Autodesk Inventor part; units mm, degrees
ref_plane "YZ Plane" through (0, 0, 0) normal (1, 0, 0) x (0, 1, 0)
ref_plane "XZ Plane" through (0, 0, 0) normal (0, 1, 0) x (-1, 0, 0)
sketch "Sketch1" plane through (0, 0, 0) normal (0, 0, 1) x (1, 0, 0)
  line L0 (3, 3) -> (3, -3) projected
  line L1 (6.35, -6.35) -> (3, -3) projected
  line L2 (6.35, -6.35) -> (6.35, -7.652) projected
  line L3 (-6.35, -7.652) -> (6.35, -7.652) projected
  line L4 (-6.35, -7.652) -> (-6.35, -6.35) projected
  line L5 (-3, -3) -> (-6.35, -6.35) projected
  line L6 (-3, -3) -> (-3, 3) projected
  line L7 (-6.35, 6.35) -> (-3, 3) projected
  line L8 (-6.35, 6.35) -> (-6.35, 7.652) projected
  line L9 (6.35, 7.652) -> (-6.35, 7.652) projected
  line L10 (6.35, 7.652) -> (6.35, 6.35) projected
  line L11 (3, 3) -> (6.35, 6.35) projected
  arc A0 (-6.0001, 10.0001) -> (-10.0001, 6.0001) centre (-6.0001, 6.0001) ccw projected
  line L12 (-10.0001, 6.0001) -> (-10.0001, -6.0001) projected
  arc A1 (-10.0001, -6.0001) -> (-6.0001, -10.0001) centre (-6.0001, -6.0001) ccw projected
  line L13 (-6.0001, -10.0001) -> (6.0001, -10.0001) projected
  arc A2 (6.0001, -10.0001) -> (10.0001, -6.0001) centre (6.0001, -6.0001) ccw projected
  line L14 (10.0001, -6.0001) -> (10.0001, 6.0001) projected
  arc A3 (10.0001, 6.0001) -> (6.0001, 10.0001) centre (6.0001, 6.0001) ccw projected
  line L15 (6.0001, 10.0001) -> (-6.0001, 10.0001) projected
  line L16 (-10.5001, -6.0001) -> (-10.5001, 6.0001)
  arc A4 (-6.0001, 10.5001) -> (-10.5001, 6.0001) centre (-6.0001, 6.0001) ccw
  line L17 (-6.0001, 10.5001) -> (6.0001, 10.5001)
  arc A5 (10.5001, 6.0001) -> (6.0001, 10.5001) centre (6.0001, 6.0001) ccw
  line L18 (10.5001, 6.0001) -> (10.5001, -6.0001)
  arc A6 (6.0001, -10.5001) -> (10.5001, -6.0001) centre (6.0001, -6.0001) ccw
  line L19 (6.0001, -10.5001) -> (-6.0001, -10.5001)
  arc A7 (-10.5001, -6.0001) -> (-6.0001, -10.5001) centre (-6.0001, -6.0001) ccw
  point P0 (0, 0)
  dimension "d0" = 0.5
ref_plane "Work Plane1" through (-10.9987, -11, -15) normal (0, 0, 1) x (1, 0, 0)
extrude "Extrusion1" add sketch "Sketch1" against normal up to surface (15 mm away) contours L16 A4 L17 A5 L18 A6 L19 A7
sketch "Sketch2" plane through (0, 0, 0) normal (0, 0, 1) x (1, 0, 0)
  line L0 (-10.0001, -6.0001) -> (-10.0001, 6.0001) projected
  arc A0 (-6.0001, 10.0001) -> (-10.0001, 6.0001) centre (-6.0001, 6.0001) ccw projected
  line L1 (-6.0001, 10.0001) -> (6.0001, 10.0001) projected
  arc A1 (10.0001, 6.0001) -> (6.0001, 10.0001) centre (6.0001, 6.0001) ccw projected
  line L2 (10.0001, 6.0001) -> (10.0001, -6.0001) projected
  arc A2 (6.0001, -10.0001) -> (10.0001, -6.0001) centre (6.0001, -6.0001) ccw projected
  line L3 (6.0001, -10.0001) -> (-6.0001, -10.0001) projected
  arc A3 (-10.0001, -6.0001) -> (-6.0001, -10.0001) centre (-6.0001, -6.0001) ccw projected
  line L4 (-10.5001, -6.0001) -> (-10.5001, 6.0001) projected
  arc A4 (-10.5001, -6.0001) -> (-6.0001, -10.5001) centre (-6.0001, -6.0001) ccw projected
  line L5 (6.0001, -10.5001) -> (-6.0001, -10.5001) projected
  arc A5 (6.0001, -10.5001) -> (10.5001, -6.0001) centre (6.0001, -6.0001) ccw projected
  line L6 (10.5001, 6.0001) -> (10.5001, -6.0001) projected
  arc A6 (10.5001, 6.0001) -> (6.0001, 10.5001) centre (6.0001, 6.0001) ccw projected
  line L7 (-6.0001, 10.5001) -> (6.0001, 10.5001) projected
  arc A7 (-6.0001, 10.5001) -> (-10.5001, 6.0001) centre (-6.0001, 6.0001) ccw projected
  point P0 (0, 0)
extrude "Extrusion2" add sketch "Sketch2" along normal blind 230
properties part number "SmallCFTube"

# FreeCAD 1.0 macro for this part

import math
import FreeCAD as App
import Part
import Sketcher

V = App.Vector

doc = App.newDocument("Part")
params = doc.addObject("Spreadsheet::Sheet", "Params")
for row, (alias, value) in enumerate([
    ("sketch1_radius", "4 mm"),
    ("sketch1_radius2", "4.5 mm"),
    ("pad1_length", "15 mm"),
    ("sketch2_radius", "4 mm"),
    ("sketch2_radius2", "4.5 mm"),
    ("pad2_length", "230 mm"),
], start=1):
    params.set(f"A{row}", alias)
    params.set(f"B{row}", "=" + value)
    params.setAlias(f"B{row}", alias)

body = doc.addObject("PartDesign::Body", "Body")

sketch1 = body.newObject("Sketcher::SketchObject", "Sketch")
sketch1.AttachmentSupport = (doc.getObject("XY_Plane"), [""])
sketch1.MapMode = "FlatFace"
sketch1.addGeometry([
    Part.LineSegment(V(-10.5, 6, 0), V(-10.5, -6, 0)),
    Part.ArcOfCircle(Part.Circle(V(-6, -6, 0), V(0, 0, 1), 4.5), math.radians(180), math.radians(270)),
    Part.LineSegment(V(-6, -10.5, 0), V(6, -10.5, 0)),
    Part.ArcOfCircle(Part.Circle(V(6, -6, 0), V(0, 0, 1), 4.5), math.radians(-90), math.radians(0)),
    Part.LineSegment(V(10.5, -6, 0), V(10.5, 6, 0)),
    Part.ArcOfCircle(Part.Circle(V(6, 6, 0), V(0, 0, 1), 4.5), math.radians(0), math.radians(90)),
    Part.LineSegment(V(6, 10.5, 0), V(-6, 10.5, 0)),
    Part.ArcOfCircle(Part.Circle(V(-6, 6, 0), V(0, 0, 1), 4.5), math.radians(90), math.radians(180)),
    Part.ArcOfCircle(Part.Circle(V(-6, 6, 0), V(0, 0, 1), 4), math.radians(90), math.radians(180)),
    Part.LineSegment(V(-6, 10, 0), V(6, 10, 0)),
    Part.ArcOfCircle(Part.Circle(V(6, 6, 0), V(0, 0, 1), 4), math.radians(0), math.radians(90)),
    Part.LineSegment(V(10, 6, 0), V(10, -6, 0)),
    Part.ArcOfCircle(Part.Circle(V(6, -6, 0), V(0, 0, 1), 4), math.radians(-90), math.radians(0)),
    Part.LineSegment(V(6, -10, 0), V(-6, -10, 0)),
    Part.ArcOfCircle(Part.Circle(V(-6, -6, 0), V(0, 0, 1), 4), math.radians(180), math.radians(270)),
    Part.LineSegment(V(-10, -6, 0), V(-10, 6, 0)),
], False)
sketch1.addConstraint([
    Sketcher.Constraint("Tangent", 0, 2, 1, 1),
    Sketcher.Constraint("Tangent", 1, 2, 2, 1),
    Sketcher.Constraint("Tangent", 2, 2, 3, 1),
    Sketcher.Constraint("Tangent", 3, 2, 4, 1),
    Sketcher.Constraint("Tangent", 4, 2, 5, 1),
    Sketcher.Constraint("Tangent", 5, 2, 6, 1),
    Sketcher.Constraint("Tangent", 6, 2, 7, 1),
    Sketcher.Constraint("Tangent", 7, 2, 0, 1),
    Sketcher.Constraint("Tangent", 8, 1, 9, 1),
    Sketcher.Constraint("Tangent", 9, 2, 10, 2),
    Sketcher.Constraint("Tangent", 10, 1, 11, 1),
    Sketcher.Constraint("Tangent", 11, 2, 12, 2),
    Sketcher.Constraint("Tangent", 12, 1, 13, 1),
    Sketcher.Constraint("Tangent", 13, 2, 14, 2),
    Sketcher.Constraint("Tangent", 14, 1, 15, 1),
    Sketcher.Constraint("Tangent", 15, 2, 8, 2),
    Sketcher.Constraint("Vertical", 0),
    Sketcher.Constraint("Horizontal", 2),
    Sketcher.Constraint("Vertical", 4),
    Sketcher.Constraint("Horizontal", 6),
    Sketcher.Constraint("Horizontal", 9),
    Sketcher.Constraint("Vertical", 11),
    Sketcher.Constraint("Horizontal", 13),
    Sketcher.Constraint("Vertical", 15),
    Sketcher.Constraint("Coincident", 8, 3, 7, 3),
    Sketcher.Constraint("Coincident", 10, 3, 5, 3),
    Sketcher.Constraint("Coincident", 12, 3, 3, 3),
    Sketcher.Constraint("Equal", 1, 3),
    Sketcher.Constraint("Equal", 3, 5),
    Sketcher.Constraint("Equal", 5, 7),
    Sketcher.Constraint("Equal", 12, 14),
    Sketcher.Constraint("Symmetric", 1, 3, 5, 3, -1, 1),
    Sketcher.Constraint("Equal", 13, 0),
    Sketcher.Constraint("Radius", 8, 4.0),
    Sketcher.Constraint("Radius", 1, 4.5),
    Sketcher.Constraint("DistanceX", 1, 3, -1, 1, 6.0),
])
sketch1.setExpression("Constraints[33]", "Params.sketch1_radius")
sketch1.setExpression("Constraints[34]", "Params.sketch1_radius2")
pad1 = body.newObject("PartDesign::Pad", "Pad")
pad1.Profile = sketch1
pad1.setExpression("Length", "Params.pad1_length")
pad1.Reversed = True

sketch2 = body.newObject("Sketcher::SketchObject", "Sketch001")
sketch2.AttachmentSupport = (doc.getObject("XY_Plane"), [""])
sketch2.MapMode = "FlatFace"
sketch2.addGeometry([
    Part.LineSegment(V(-10.5, 6, 0), V(-10.5, -6, 0)),
    Part.ArcOfCircle(Part.Circle(V(-6, -6, 0), V(0, 0, 1), 4.5), math.radians(180), math.radians(270)),
    Part.LineSegment(V(-6, -10.5, 0), V(6, -10.5, 0)),
    Part.ArcOfCircle(Part.Circle(V(6, -6, 0), V(0, 0, 1), 4.5), math.radians(-90), math.radians(0)),
    Part.LineSegment(V(10.5, -6, 0), V(10.5, 6, 0)),
    Part.ArcOfCircle(Part.Circle(V(6, 6, 0), V(0, 0, 1), 4.5), math.radians(0), math.radians(90)),
    Part.LineSegment(V(6, 10.5, 0), V(-6, 10.5, 0)),
    Part.ArcOfCircle(Part.Circle(V(-6, 6, 0), V(0, 0, 1), 4.5), math.radians(90), math.radians(180)),
    Part.ArcOfCircle(Part.Circle(V(-6, -6, 0), V(0, 0, 1), 4), math.radians(180), math.radians(270)),
    Part.LineSegment(V(-10, -6, 0), V(-10, 6, 0)),
    Part.ArcOfCircle(Part.Circle(V(-6, 6, 0), V(0, 0, 1), 4), math.radians(90), math.radians(180)),
    Part.LineSegment(V(-6, 10, 0), V(6, 10, 0)),
    Part.ArcOfCircle(Part.Circle(V(6, 6, 0), V(0, 0, 1), 4), math.radians(0), math.radians(90)),
    Part.LineSegment(V(10, 6, 0), V(10, -6, 0)),
    Part.ArcOfCircle(Part.Circle(V(6, -6, 0), V(0, 0, 1), 4), math.radians(-90), math.radians(0)),
    Part.LineSegment(V(6, -10, 0), V(-6, -10, 0)),
], False)
sketch2.addConstraint([
    Sketcher.Constraint("Tangent", 0, 2, 1, 1),
    Sketcher.Constraint("Tangent", 1, 2, 2, 1),
    Sketcher.Constraint("Tangent", 2, 2, 3, 1),
    Sketcher.Constraint("Tangent", 3, 2, 4, 1),
    Sketcher.Constraint("Tangent", 4, 2, 5, 1),
    Sketcher.Constraint("Tangent", 5, 2, 6, 1),
    Sketcher.Constraint("Tangent", 6, 2, 7, 1),
    Sketcher.Constraint("Tangent", 7, 2, 0, 1),
    Sketcher.Constraint("Tangent", 8, 1, 9, 1),
    Sketcher.Constraint("Tangent", 9, 2, 10, 2),
    Sketcher.Constraint("Tangent", 10, 1, 11, 1),
    Sketcher.Constraint("Tangent", 11, 2, 12, 2),
    Sketcher.Constraint("Tangent", 12, 1, 13, 1),
    Sketcher.Constraint("Tangent", 13, 2, 14, 2),
    Sketcher.Constraint("Tangent", 14, 1, 15, 1),
    Sketcher.Constraint("Tangent", 15, 2, 8, 2),
    Sketcher.Constraint("Vertical", 0),
    Sketcher.Constraint("Horizontal", 2),
    Sketcher.Constraint("Vertical", 4),
    Sketcher.Constraint("Horizontal", 6),
    Sketcher.Constraint("Vertical", 9),
    Sketcher.Constraint("Horizontal", 11),
    Sketcher.Constraint("Vertical", 13),
    Sketcher.Constraint("Horizontal", 15),
    Sketcher.Constraint("Coincident", 8, 3, 1, 3),
    Sketcher.Constraint("Coincident", 10, 3, 7, 3),
    Sketcher.Constraint("Coincident", 12, 3, 5, 3),
    Sketcher.Constraint("Equal", 1, 3),
    Sketcher.Constraint("Equal", 3, 5),
    Sketcher.Constraint("Equal", 5, 7),
    Sketcher.Constraint("Equal", 12, 14),
    Sketcher.Constraint("Symmetric", 1, 3, 5, 3, -1, 1),
    Sketcher.Constraint("Equal", 15, 0),
    Sketcher.Constraint("Radius", 8, 4.0),
    Sketcher.Constraint("Radius", 1, 4.5),
    Sketcher.Constraint("DistanceX", 1, 3, -1, 1, 6.0),
])
sketch2.setExpression("Constraints[33]", "Params.sketch2_radius")
sketch2.setExpression("Constraints[34]", "Params.sketch2_radius2")
pad2 = body.newObject("PartDesign::Pad", "Pad001")
pad2.Profile = sketch2
pad2.setExpression("Length", "Params.pad2_length")

doc.recompute()
